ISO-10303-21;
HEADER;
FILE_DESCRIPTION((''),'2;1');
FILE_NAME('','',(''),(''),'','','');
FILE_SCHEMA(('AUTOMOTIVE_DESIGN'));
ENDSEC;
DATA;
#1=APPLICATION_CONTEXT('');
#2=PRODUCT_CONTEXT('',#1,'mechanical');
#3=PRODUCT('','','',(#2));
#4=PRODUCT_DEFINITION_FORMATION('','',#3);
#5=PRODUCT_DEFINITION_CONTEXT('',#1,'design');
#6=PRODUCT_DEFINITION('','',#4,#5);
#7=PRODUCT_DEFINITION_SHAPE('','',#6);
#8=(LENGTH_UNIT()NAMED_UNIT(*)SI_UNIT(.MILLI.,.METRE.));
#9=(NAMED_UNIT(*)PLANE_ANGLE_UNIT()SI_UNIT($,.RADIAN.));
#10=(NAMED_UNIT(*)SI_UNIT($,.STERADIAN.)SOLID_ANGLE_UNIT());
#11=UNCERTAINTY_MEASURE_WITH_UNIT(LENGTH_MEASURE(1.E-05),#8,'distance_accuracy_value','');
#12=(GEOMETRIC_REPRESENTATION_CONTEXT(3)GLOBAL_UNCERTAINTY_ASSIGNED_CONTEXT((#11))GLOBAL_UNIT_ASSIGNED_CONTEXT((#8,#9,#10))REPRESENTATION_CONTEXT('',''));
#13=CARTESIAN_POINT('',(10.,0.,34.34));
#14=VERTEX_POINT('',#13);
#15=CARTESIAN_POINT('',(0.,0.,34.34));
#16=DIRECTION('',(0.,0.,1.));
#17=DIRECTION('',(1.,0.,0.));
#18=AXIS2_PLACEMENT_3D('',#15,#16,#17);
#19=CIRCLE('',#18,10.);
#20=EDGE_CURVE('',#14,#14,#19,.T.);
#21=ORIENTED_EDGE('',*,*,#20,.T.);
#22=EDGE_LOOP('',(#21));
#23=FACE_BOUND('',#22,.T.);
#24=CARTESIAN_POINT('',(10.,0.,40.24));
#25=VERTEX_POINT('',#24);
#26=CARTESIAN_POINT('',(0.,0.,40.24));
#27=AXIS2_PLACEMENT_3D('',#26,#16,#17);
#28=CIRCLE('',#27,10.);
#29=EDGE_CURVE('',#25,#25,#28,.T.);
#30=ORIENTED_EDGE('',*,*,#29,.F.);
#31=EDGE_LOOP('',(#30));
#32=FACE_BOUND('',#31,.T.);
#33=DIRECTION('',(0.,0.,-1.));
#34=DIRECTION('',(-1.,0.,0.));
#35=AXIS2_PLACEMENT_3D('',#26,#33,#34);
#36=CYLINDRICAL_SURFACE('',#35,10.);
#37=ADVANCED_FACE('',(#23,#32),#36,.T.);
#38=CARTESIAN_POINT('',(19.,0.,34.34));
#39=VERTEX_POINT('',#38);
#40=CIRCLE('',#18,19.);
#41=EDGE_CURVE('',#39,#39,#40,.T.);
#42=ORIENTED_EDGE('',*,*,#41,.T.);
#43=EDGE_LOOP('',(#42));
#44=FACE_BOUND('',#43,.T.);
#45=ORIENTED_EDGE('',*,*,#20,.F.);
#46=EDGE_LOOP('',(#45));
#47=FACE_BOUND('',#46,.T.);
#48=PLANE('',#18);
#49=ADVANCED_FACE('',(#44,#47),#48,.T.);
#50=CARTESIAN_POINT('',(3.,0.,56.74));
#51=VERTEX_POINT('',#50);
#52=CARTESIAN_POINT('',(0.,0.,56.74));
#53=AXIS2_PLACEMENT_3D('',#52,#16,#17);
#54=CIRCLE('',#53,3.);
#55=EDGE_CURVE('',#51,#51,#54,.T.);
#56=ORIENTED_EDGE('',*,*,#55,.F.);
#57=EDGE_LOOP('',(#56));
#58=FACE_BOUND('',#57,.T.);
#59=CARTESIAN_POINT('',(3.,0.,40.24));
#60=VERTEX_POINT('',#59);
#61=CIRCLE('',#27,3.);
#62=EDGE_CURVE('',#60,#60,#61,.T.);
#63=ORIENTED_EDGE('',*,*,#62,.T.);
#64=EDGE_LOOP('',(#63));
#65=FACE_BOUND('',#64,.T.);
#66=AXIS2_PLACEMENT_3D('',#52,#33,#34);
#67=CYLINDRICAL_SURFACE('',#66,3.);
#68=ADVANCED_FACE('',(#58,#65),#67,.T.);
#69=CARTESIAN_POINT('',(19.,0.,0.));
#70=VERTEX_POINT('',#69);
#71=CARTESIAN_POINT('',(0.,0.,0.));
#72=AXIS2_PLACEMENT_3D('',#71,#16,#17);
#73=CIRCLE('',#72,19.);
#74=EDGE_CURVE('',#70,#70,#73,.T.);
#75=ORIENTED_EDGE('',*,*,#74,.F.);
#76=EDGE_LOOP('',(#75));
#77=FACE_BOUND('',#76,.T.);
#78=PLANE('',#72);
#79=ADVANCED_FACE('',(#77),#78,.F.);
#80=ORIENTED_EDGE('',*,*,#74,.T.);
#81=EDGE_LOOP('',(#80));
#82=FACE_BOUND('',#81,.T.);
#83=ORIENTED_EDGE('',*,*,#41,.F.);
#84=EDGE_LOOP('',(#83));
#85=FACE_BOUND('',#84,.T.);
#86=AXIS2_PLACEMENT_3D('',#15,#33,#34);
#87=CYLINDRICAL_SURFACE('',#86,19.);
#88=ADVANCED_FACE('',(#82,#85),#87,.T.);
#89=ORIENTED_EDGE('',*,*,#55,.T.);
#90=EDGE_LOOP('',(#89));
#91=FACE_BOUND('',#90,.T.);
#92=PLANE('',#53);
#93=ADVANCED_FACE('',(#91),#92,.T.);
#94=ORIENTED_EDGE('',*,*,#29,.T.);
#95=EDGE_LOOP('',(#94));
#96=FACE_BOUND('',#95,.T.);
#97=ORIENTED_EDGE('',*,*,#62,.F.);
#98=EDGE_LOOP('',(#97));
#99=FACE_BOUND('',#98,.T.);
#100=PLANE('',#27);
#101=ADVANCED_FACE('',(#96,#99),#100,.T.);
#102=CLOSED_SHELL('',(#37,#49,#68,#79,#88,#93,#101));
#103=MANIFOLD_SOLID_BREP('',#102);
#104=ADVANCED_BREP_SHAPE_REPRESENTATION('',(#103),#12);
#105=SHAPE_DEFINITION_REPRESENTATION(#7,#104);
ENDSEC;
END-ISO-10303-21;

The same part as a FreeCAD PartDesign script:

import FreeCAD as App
import Part
import Sketcher

V = App.Vector
Q = App.Units.Quantity

doc = App.newDocument("Part")
body = doc.addObject("PartDesign::Body", "Body")

# Sketch on XY plane
sketch1 = body.newObject("Sketcher::SketchObject", "Sketch")
sketch1.AttachmentSupport = (doc.getObject("XY_Plane"), [""])
sketch1.MapMode = "FlatFace"
sketch1.addGeometry(Part.Circle(V(0, 0, 0), V(0, 0, 1), 19), False)
sketch1.addConstraint([
    Sketcher.Constraint("Coincident", 0, 3, -1, 1),
    Sketcher.Constraint("Diameter", 0, Q("38 mm")),
])
pad1 = body.newObject("PartDesign::Pad", "Pad")
pad1.Profile = sketch1
pad1.Length = 34.34

# Sketch on XY plane
sketch2 = body.newObject("Sketcher::SketchObject", "Sketch001")
sketch2.AttachmentSupport = (doc.getObject("XY_Plane"), [""])
sketch2.MapMode = "FlatFace"
sketch2.AttachmentOffset = App.Placement(V(0, 0, 34.34), App.Rotation())
sketch2.addGeometry(Part.Circle(V(0, 0, 0), V(0, 0, 1), 10), False)
sketch2.addConstraint([
    Sketcher.Constraint("Coincident", 0, 3, -1, 1),
    Sketcher.Constraint("Diameter", 0, Q("20 mm")),
])
pad2 = body.newObject("PartDesign::Pad", "Pad001")
pad2.Profile = sketch2
pad2.Length = 5.9

# Sketch on XY plane
sketch3 = body.newObject("Sketcher::SketchObject", "Sketch002")
sketch3.AttachmentSupport = (doc.getObject("XY_Plane"), [""])
sketch3.MapMode = "FlatFace"
sketch3.AttachmentOffset = App.Placement(V(0, 0, 40.24), App.Rotation())
sketch3.addGeometry(Part.Circle(V(0, 0, 0), V(0, 0, 1), 3), False)
sketch3.addConstraint([
    Sketcher.Constraint("Coincident", 0, 3, -1, 1),
    Sketcher.Constraint("Diameter", 0, Q("6 mm")),
])
pad3 = body.newObject("PartDesign::Pad", "Pad002")
pad3.Profile = sketch3
pad3.Length = 16.5

doc.recompute()
